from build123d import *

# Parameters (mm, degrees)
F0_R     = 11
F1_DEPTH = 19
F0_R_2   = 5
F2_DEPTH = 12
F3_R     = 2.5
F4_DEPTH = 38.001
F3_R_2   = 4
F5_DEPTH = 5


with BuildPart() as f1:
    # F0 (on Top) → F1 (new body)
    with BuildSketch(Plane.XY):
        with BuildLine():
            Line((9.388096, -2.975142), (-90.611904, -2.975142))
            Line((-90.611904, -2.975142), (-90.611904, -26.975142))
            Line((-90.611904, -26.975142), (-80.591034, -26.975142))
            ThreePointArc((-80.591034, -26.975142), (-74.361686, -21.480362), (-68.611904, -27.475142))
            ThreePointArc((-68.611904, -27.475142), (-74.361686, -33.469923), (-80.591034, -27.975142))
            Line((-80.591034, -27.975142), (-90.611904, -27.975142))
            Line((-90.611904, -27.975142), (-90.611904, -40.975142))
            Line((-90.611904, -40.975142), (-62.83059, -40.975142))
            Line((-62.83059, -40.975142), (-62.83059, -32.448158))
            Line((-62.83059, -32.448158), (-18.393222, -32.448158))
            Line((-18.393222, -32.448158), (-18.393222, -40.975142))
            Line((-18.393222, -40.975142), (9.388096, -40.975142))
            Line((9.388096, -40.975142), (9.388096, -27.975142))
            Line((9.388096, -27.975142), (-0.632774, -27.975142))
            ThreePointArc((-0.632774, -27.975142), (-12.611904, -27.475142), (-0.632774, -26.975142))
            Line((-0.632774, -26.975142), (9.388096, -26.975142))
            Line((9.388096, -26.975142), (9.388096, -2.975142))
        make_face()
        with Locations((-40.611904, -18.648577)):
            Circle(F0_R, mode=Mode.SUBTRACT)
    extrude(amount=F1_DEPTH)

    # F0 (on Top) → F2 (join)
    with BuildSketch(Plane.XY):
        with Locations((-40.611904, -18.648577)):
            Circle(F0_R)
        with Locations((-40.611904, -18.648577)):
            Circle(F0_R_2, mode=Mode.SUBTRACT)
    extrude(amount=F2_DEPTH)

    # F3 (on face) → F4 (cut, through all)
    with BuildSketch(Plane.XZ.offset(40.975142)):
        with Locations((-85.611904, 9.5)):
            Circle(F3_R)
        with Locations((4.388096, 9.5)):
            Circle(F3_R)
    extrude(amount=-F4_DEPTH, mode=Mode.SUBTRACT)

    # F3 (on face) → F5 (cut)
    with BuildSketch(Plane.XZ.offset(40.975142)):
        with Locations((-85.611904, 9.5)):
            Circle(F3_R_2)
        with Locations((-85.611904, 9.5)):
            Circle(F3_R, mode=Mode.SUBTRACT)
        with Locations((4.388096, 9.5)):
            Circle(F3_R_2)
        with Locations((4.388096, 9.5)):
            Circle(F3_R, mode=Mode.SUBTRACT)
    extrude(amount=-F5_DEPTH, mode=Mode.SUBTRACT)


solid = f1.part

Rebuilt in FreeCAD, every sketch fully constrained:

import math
import FreeCAD as App
import Part
import Sketcher
from FreeCAD import Vector
Q = App.Units.Quantity

doc = App.newDocument("Part")
body = doc.addObject("PartDesign::Body", "Body")

# Sketch on XY plane
sketch1 = body.newObject("Sketcher::SketchObject", "Sketch")
sketch1.AttachmentSupport = (doc.getObject("XY_Plane"), [""])
sketch1.MapMode = "FlatFace"
sketch1.addGeometry([
    Part.LineSegment(Vector(9.4, -3, 0), Vector(-90.6, -3, 0)),  # 0
    Part.LineSegment(Vector(-90.6, -3, 0), Vector(-90.6, -27, 0)),  # 1
    Part.LineSegment(Vector(-90.6, -27, 0), Vector(-80.6, -27, 0)),  # 2
    Part.ArcOfCircle(Part.Circle(Vector(-74.6, -27.5, 0), Vector(0, 0, 1), 6), math.radians(0), math.radians(175)),  # 3
    Part.ArcOfCircle(Part.Circle(Vector(-74.6, -27.5, 0), Vector(0, 0, 1), 6), math.radians(-175), math.radians(0)),  # 4
    Part.LineSegment(Vector(-80.6, -28, 0), Vector(-90.6, -28, 0)),  # 5
    Part.LineSegment(Vector(-90.6, -28, 0), Vector(-90.6, -41, 0)),  # 6
    Part.LineSegment(Vector(-90.6, -41, 0), Vector(-62.8, -41, 0)),  # 7
    Part.LineSegment(Vector(-62.8, -41, 0), Vector(-62.8, -32.4, 0)),  # 8
    Part.LineSegment(Vector(-62.8, -32.4, 0), Vector(-18.4, -32.4, 0)),  # 9
    Part.LineSegment(Vector(-18.4, -32.4, 0), Vector(-18.4, -41, 0)),  # 10
    Part.LineSegment(Vector(-18.4, -41, 0), Vector(9.4, -41, 0)),  # 11
    Part.LineSegment(Vector(9.4, -41, 0), Vector(9.4, -28, 0)),  # 12
    Part.LineSegment(Vector(9.4, -28, 0), Vector(-0.6, -28, 0)),  # 13
    Part.ArcOfCircle(Part.Circle(Vector(-6.6, -27.5, 0), Vector(0, 0, 1), 6), math.radians(5), math.radians(355)),  # 14
    Part.LineSegment(Vector(-0.6, -27, 0), Vector(9.4, -27, 0)),  # 15
    Part.LineSegment(Vector(9.4, -27, 0), Vector(9.4, -3, 0)),  # 16
    Part.Circle(Vector(-40.6, -18.6, 0), Vector(0, 0, 1), 11),  # 17
], False)
sketch1.addConstraint([
    Sketcher.Constraint("Coincident", 0, 2, 1, 1),
    Sketcher.Constraint("Coincident", 1, 2, 2, 1),
    Sketcher.Constraint("Coincident", 2, 2, 3, 2),
    Sketcher.Constraint("Tangent", 3, 1, 4, 2),
    Sketcher.Constraint("Coincident", 4, 1, 5, 1),
    Sketcher.Constraint("Coincident", 5, 2, 6, 1),
    Sketcher.Constraint("Coincident", 6, 2, 7, 1),
    Sketcher.Constraint("Coincident", 7, 2, 8, 1),
    Sketcher.Constraint("Coincident", 8, 2, 9, 1),
    Sketcher.Constraint("Coincident", 9, 2, 10, 1),
    Sketcher.Constraint("Coincident", 10, 2, 11, 1),
    Sketcher.Constraint("Coincident", 11, 2, 12, 1),
    Sketcher.Constraint("Coincident", 12, 2, 13, 1),
    Sketcher.Constraint("Coincident", 13, 2, 14, 2),
    Sketcher.Constraint("Coincident", 14, 1, 15, 1),
    Sketcher.Constraint("Coincident", 15, 2, 16, 1),
    Sketcher.Constraint("Coincident", 16, 2, 0, 1),
    Sketcher.Constraint("Horizontal", 0),
    Sketcher.Constraint("Vertical", 1),
    Sketcher.Constraint("Horizontal", 2),
    Sketcher.Constraint("Horizontal", 5),
    Sketcher.Constraint("Vertical", 6),
    Sketcher.Constraint("Horizontal", 7),
    Sketcher.Constraint("Vertical", 8),
    Sketcher.Constraint("Horizontal", 9),
    Sketcher.Constraint("Vertical", 10),
    Sketcher.Constraint("Horizontal", 11),
    Sketcher.Constraint("Vertical", 12),
    Sketcher.Constraint("Horizontal", 13),
    Sketcher.Constraint("Horizontal", 15),
    Sketcher.Constraint("Vertical", 16),
    Sketcher.Constraint("Equal", 3, 4),
    Sketcher.Constraint("Equal", 4, 14),
    Sketcher.Constraint("Horizontal", 4, 3, 14, 3),
    Sketcher.Constraint("Horizontal", 14, 3, 3, 1),
    Sketcher.Constraint("Horizontal", 7, 2, 10, 2),
    Sketcher.Constraint("Horizontal", 5, 2, 12, 2),
    Sketcher.Constraint("Horizontal", 2, 2, 14, 1),
    Sketcher.Constraint("Vertical", 2, 2, 4, 1),
    Sketcher.Constraint("Vertical", 1, 2, 5, 2),
    Sketcher.Constraint("Vertical", 12, 2, 15, 2),
    Sketcher.Constraint("Equal", 5, 13),
    Sketcher.Constraint("Diameter", 17, Q("22 mm")),
    Sketcher.Constraint("Radius", 3, Q("6 mm")),
    Sketcher.Constraint("DistanceX", 0, 2, 0, 1, Q("100 mm")),
    Sketcher.Constraint("DistanceY", 1, 2, 1, 1, Q("24 mm")),
    Sketcher.Constraint("DistanceY", 6, 2, 6, 1, Q("13 mm")),
    Sketcher.Constraint("DistanceX", 4, 3, 14, 3, Q("68 mm")),
    Sketcher.Constraint("DistanceX", 17, 3, 14, 3, Q("34 mm")),
    Sketcher.Constraint("DistanceY", 4, 1, 2, 2, Q("1 mm")),
    Sketcher.Constraint("DistanceX", 11, 1, 11, 2, Q("27.781318 mm")),
    Sketcher.Constraint("DistanceX", 7, 1, 7, 2, Q("27.781314 mm")),
    Sketcher.Constraint("DistanceY", 8, 1, 8, 2, Q("8.526984 mm")),
    Sketcher.Constraint("DistanceY", 0, 2, -1, 1, Q("2.975142 mm")),
    Sketcher.Constraint("DistanceX", 7, 2, -1, 1, Q("62.83059 mm")),
    Sketcher.Constraint("DistanceY", 9, 2, 17, 3, Q("13.799581 mm")),
])
pad1 = body.newObject("PartDesign::Pad", "Pad")
pad1.Profile = sketch1
pad1.Length = 19

# Sketch on XY plane
sketch2 = body.newObject("Sketcher::SketchObject", "Sketch001")
sketch2.AttachmentSupport = (doc.getObject("XY_Plane"), [""])
sketch2.MapMode = "FlatFace"
sketch2.addGeometry([
    Part.Circle(Vector(-41, -19, 0), Vector(0, 0, 1), 11),
    Part.Circle(Vector(-41, -19, 0), Vector(0, 0, 1), 5),
], False)
sketch2.addConstraint([
    Sketcher.Constraint("Coincident", 1, 3, 0, 3),
    Sketcher.Constraint("Diameter", 0, Q("22 mm")),
    Sketcher.Constraint("Diameter", 1, Q("10 mm")),
    Sketcher.Constraint("DistanceX", 0, 3, -1, 1, Q("40.611904 mm")),
    Sketcher.Constraint("DistanceY", 0, 3, -1, 1, Q("18.648577 mm")),
])
pad2 = body.newObject("PartDesign::Pad", "Pad001")
pad2.Profile = sketch2
pad2.Length = 12

# Sketch on XZ plane
sketch3 = body.newObject("Sketcher::SketchObject", "Sketch002")
sketch3.AttachmentSupport = (doc.getObject("XZ_Plane"), [""])
sketch3.MapMode = "FlatFace"
sketch3.AttachmentOffset = App.Placement(Vector(0, 0, 40.975142), App.Rotation())
sketch3.addGeometry([
    Part.Circle(Vector(-85.6, 9.5, 0), Vector(0, 0, 1), 2.5),
    Part.Circle(Vector(4.4, 9.5, 0), Vector(0, 0, 1), 2.5),
], False)
sketch3.addConstraint([
    Sketcher.Constraint("Equal", 0, 1),
    Sketcher.Constraint("Horizontal", 0, 3, 1, 3),
    Sketcher.Constraint("Diameter", 0, Q("5 mm")),
    Sketcher.Constraint("DistanceX", 0, 3, 1, 3, Q("90 mm")),
    Sketcher.Constraint("DistanceY", -1, 1, 0, 3, Q("9.5 mm")),
    Sketcher.Constraint("DistanceX", 0, 3, -1, 1, Q("85.611904 mm")),
])
pocket1 = body.newObject("PartDesign::Pocket", "Pocket")
pocket1.Profile = sketch3
pocket1.Type = "ThroughAll"

# Sketch on XZ plane
sketch4 = body.newObject("Sketcher::SketchObject", "Sketch003")
sketch4.AttachmentSupport = (doc.getObject("XZ_Plane"), [""])
sketch4.MapMode = "FlatFace"
sketch4.AttachmentOffset = App.Placement(Vector(0, 0, 40.975142), App.Rotation())
sketch4.addGeometry([
    Part.Circle(Vector(-85.6, 9.5, 0), Vector(0, 0, 1), 4),
    Part.Circle(Vector(-85.6, 9.5, 0), Vector(0, 0, 1), 2.5),
    Part.Circle(Vector(4.4, 9.5, 0), Vector(0, 0, 1), 4),
    Part.Circle(Vector(4.4, 9.5, 0), Vector(0, 0, 1), 2.5),
], False)
sketch4.addConstraint([
    Sketcher.Constraint("Coincident", 1, 3, 0, 3),
    Sketcher.Constraint("Coincident", 3, 3, 2, 3),
    Sketcher.Constraint("Equal", 0, 2),
    Sketcher.Constraint("Equal", 1, 3),
    Sketcher.Constraint("Horizontal", 1, 3, 2, 3),
    Sketcher.Constraint("Diameter", 0, Q("8 mm")),
    Sketcher.Constraint("Diameter", 1, Q("5 mm")),
    Sketcher.Constraint("DistanceX", 0, 3, 2, 3, Q("90 mm")),
    Sketcher.Constraint("DistanceY", -1, 1, 0, 3, Q("9.5 mm")),
    Sketcher.Constraint("DistanceX", 0, 3, -1, 1, Q("85.611904 mm")),
])
pocket2 = body.newObject("PartDesign::Pocket", "Pocket001")
pocket2.Profile = sketch4
pocket2.Length = 5

doc.recompute()
